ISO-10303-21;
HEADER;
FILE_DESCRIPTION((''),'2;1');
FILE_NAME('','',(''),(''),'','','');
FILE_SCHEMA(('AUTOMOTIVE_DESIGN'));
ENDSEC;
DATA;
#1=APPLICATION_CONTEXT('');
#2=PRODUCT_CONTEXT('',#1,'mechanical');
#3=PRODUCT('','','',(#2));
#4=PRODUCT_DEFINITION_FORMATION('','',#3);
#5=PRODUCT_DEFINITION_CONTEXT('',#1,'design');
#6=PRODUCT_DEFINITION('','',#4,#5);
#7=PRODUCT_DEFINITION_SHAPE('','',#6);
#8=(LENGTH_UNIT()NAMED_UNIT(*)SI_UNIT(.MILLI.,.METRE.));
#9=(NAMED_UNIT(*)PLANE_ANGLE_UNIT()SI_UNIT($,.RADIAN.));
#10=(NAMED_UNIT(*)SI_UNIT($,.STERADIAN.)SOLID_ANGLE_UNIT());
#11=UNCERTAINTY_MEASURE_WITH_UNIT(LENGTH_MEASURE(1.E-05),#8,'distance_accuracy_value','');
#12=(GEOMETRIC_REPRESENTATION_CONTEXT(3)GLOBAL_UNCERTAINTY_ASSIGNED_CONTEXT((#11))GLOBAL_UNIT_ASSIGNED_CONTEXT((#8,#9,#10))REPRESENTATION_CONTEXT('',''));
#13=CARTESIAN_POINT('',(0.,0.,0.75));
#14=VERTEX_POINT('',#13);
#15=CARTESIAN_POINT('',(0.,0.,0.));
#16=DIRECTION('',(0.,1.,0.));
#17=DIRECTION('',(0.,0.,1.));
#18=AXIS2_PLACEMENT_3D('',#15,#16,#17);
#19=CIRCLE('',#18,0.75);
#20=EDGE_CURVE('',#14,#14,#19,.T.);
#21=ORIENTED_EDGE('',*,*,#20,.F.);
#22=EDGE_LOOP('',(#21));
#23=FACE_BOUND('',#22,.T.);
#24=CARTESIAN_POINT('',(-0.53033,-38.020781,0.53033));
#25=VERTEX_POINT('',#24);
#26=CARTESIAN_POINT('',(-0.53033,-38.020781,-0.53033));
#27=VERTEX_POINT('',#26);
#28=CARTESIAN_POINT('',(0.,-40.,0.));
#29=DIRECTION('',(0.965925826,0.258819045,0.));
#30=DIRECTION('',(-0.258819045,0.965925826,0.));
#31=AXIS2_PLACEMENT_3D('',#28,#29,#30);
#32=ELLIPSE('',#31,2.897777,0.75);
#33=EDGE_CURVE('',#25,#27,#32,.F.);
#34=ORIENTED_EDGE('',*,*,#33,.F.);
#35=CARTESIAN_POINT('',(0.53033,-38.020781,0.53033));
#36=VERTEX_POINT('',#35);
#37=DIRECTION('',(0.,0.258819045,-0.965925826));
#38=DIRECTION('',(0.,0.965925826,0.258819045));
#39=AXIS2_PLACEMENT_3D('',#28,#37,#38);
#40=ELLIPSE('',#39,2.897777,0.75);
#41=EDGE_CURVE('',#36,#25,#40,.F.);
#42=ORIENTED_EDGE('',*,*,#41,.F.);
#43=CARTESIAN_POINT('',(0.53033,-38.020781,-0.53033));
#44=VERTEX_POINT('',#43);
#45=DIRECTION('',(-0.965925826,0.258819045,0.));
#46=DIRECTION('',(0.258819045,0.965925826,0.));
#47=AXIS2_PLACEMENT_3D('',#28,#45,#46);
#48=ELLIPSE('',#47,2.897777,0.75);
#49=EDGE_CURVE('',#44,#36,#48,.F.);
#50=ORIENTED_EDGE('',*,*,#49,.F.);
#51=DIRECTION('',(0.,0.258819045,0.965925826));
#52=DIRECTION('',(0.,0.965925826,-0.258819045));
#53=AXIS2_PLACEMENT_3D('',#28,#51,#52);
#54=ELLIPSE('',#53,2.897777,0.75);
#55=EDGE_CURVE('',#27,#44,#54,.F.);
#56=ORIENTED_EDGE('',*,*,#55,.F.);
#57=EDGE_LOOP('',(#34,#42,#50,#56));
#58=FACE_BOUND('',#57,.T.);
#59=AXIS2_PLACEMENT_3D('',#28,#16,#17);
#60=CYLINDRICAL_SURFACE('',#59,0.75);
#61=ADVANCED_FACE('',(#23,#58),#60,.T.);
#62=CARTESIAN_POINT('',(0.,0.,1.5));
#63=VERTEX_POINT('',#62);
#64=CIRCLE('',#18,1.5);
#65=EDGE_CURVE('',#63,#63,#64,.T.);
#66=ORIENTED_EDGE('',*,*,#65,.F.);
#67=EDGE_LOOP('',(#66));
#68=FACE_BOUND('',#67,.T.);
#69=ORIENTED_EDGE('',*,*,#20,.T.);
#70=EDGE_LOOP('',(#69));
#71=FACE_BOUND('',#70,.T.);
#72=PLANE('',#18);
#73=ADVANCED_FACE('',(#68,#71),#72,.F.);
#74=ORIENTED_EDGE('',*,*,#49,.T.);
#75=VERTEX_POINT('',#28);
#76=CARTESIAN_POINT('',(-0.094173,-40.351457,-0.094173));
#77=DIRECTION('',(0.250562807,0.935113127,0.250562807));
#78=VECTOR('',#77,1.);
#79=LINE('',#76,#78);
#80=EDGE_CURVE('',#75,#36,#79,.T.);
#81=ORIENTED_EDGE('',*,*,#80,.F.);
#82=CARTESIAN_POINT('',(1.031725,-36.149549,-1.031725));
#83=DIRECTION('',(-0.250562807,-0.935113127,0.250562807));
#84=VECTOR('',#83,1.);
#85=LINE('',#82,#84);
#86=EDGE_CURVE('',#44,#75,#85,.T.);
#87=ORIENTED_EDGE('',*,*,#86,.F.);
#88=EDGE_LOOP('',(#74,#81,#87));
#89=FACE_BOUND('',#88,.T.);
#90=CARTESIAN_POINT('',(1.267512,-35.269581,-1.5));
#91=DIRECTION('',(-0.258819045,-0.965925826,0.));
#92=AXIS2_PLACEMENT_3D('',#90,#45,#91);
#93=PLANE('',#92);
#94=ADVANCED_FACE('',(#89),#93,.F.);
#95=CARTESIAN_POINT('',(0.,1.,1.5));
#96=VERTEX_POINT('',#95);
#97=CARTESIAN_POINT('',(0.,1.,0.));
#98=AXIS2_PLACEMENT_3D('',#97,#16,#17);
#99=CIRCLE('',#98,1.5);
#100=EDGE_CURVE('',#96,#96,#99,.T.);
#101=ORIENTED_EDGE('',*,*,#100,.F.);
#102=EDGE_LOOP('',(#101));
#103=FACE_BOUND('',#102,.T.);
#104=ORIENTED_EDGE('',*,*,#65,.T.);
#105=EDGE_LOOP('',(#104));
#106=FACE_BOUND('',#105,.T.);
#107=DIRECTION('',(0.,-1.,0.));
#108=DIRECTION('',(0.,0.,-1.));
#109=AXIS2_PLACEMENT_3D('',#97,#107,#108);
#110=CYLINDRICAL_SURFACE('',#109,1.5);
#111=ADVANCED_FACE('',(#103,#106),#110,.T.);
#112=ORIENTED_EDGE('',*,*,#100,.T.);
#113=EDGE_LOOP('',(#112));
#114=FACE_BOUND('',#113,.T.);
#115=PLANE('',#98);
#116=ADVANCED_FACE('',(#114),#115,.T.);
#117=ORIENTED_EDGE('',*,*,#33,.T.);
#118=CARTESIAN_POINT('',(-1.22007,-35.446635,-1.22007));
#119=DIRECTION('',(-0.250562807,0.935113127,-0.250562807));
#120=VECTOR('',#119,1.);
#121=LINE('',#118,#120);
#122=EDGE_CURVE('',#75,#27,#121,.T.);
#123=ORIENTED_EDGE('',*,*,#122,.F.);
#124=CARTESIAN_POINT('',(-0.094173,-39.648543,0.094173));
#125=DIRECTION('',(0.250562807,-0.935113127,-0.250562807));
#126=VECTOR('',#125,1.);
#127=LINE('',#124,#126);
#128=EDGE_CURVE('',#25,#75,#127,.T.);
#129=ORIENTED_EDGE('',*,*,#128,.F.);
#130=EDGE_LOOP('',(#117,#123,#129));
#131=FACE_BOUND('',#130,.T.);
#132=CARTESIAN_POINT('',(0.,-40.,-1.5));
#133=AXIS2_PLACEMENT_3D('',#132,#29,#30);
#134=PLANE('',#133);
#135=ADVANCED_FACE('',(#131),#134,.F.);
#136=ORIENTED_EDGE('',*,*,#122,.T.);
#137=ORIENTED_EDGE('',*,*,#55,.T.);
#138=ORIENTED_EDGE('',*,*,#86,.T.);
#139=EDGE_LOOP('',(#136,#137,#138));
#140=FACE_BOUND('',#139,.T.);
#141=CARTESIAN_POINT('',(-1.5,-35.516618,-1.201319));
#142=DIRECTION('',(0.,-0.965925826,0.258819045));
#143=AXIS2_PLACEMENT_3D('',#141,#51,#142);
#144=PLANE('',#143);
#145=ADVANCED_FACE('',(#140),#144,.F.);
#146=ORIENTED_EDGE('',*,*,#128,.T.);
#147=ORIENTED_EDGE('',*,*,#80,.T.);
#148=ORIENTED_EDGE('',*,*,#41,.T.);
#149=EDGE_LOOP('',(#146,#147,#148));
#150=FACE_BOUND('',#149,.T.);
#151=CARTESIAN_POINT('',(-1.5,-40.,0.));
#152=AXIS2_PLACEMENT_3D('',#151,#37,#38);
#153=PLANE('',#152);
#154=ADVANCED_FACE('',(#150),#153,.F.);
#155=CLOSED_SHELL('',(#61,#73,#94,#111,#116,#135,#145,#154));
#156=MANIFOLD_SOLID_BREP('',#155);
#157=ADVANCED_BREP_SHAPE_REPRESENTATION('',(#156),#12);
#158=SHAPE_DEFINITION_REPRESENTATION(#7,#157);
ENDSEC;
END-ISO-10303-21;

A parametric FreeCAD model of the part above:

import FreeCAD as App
import Part
import Sketcher
Q = App.Units.Quantity

doc = App.newDocument("Part")
body = doc.addObject("PartDesign::Body", "Body")

# Sketch on XZ plane
sketch1 = doc.addObject("Sketcher::SketchObject", "Sketch")
body.addObject(sketch1)
sketch1.AttachmentSupport = (doc.XZ_Plane, [""])
sketch1.MapMode = "FlatFace"
sketch1.addGeometry(Part.Circle(App.Vector(0, 0, 0), App.Vector(0, 0, 1), 0.75), False)
sketch1.addConstraint([
    Sketcher.Constraint("Coincident", 0, 3, -1, 1),
    Sketcher.Constraint("Diameter", 0, Q("1.5 mm")),
])
pad1 = doc.addObject("PartDesign::Pad", "Pad")
body.addObject(pad1)
pad1.Profile = sketch1
pad1.Length = 40

# Sketch on XZ plane
sketch2 = doc.addObject("Sketcher::SketchObject", "Sketch001")
body.addObject(sketch2)
sketch2.AttachmentSupport = (doc.XZ_Plane, [""])
sketch2.MapMode = "FlatFace"
sketch2.addGeometry(Part.Circle(App.Vector(0, 0, 0), App.Vector(0, 0, 1), 1.5), False)
sketch2.addConstraint([
    Sketcher.Constraint("Coincident", 0, 3, -1, 1),
    Sketcher.Constraint("Diameter", 0, Q("3 mm")),
])
pad2 = doc.addObject("PartDesign::Pad", "Pad001")
body.addObject(pad2)
pad2.Profile = sketch2
pad2.Length = 1
pad2.Reversed = True

# Sketch on YZ plane
sketch3 = doc.addObject("Sketcher::SketchObject", "Sketch002")
body.addObject(sketch3)
sketch3.AttachmentSupport = (doc.YZ_Plane, [""])
sketch3.MapMode = "FlatFace"
sketch3.addGeometry([
    Part.LineSegment(App.Vector(-35.516618, 1.201319, 0), App.Vector(-40.516618, 1.201319, 0)),  # 0
    Part.LineSegment(App.Vector(-40.516618, 1.201319, 0), App.Vector(-40.516618, -1.201319, 0)),  # 1
    Part.LineSegment(App.Vector(-40.516618, -1.201319, 0), App.Vector(-35.516618, -1.201319, 0)),  # 2
    Part.LineSegment(App.Vector(-35.516618, -1.201319, 0), App.Vector(-40, 0, 0)),  # 3
    Part.LineSegment(App.Vector(-40, 0, 0), App.Vector(-35.516618, 1.201319, 0)),  # 4
], False)
sketch3.addConstraint([
    Sketcher.Constraint("Coincident", 0, 2, 1, 1),
    Sketcher.Constraint("Coincident", 1, 2, 2, 1),
    Sketcher.Constraint("Coincident", 2, 2, 3, 1),
    Sketcher.Constraint("Coincident", 3, 2, 4, 1),
    Sketcher.Constraint("Coincident", 4, 2, 0, 1),
    Sketcher.Constraint("Horizontal", 0),
    Sketcher.Constraint("Vertical", 1),
    Sketcher.Constraint("Horizontal", 2),
    Sketcher.Constraint("Symmetric", 2, 2, 4, 2, -1),
    Sketcher.Constraint("PointOnObject", 3, 2, -1),
    Sketcher.Constraint("DistanceX", 0, 2, 0, 1, Q("5 mm")),
    Sketcher.Constraint("Angle", 3, Q("165 deg")),
    Sketcher.Constraint("DistanceX", 3, 2, -1, 1, Q("40 mm")),
    Sketcher.Constraint("Distance", 3, Q("4.641539 mm")),
])
pocket1 = doc.addObject("PartDesign::Pocket", "Pocket")
body.addObject(pocket1)
pocket1.Profile = sketch3
pocket1.Type = "ThroughAll"
pocket1.Midplane = True

# Sketch on XY plane
sketch4 = doc.addObject("Sketcher::SketchObject", "Sketch003")
body.addObject(sketch4)
sketch4.AttachmentSupport = (doc.XY_Plane, [""])
sketch4.MapMode = "FlatFace"
sketch4.addGeometry([
    Part.LineSegment(App.Vector(-1.267512, -35.269581, 0), App.Vector(-1.267512, -40.269581, 0)),  # 0
    Part.LineSegment(App.Vector(-1.267512, -40.269581, 0), App.Vector(1.267512, -40.269581, 0)),  # 1
    Part.LineSegment(App.Vector(1.267512, -40.269581, 0), App.Vector(1.267512, -35.269581, 0)),  # 2
    Part.LineSegment(App.Vector(1.267512, -35.269581, 0), App.Vector(0, -40, 0)),  # 3
    Part.LineSegment(App.Vector(0, -40, 0), App.Vector(-1.267512, -35.269581, 0)),  # 4
], False)
sketch4.addConstraint([
    Sketcher.Constraint("Coincident", 0, 2, 1, 1),
    Sketcher.Constraint("Coincident", 1, 2, 2, 1),
    Sketcher.Constraint("Coincident", 2, 2, 3, 1),
    Sketcher.Constraint("Coincident", 3, 2, 4, 1),
    Sketcher.Constraint("Coincident", 4, 2, 0, 1),
    Sketcher.Constraint("Vertical", 0),
    Sketcher.Constraint("Horizontal", 1),
    Sketcher.Constraint("Vertical", 2),
    Sketcher.Constraint("Symmetric", 2, 2, 4, 2, -2),
    Sketcher.Constraint("PointOnObject", 3, 2, -2),
    Sketcher.Constraint("DistanceY", 0, 2, 0, 1, Q("5 mm")),
    Sketcher.Constraint("Angle", 3, Q("-105 deg")),
    Sketcher.Constraint("DistanceY", 3, 2, -1, 1, Q("40 mm")),
    Sketcher.Constraint("Distance", 3, Q("4.89729 mm")),
])
pocket2 = doc.addObject("PartDesign::Pocket", "Pocket001")
body.addObject(pocket2)
pocket2.Profile = sketch4
pocket2.Type = "ThroughAll"
pocket2.Midplane = True

doc.recompute()
